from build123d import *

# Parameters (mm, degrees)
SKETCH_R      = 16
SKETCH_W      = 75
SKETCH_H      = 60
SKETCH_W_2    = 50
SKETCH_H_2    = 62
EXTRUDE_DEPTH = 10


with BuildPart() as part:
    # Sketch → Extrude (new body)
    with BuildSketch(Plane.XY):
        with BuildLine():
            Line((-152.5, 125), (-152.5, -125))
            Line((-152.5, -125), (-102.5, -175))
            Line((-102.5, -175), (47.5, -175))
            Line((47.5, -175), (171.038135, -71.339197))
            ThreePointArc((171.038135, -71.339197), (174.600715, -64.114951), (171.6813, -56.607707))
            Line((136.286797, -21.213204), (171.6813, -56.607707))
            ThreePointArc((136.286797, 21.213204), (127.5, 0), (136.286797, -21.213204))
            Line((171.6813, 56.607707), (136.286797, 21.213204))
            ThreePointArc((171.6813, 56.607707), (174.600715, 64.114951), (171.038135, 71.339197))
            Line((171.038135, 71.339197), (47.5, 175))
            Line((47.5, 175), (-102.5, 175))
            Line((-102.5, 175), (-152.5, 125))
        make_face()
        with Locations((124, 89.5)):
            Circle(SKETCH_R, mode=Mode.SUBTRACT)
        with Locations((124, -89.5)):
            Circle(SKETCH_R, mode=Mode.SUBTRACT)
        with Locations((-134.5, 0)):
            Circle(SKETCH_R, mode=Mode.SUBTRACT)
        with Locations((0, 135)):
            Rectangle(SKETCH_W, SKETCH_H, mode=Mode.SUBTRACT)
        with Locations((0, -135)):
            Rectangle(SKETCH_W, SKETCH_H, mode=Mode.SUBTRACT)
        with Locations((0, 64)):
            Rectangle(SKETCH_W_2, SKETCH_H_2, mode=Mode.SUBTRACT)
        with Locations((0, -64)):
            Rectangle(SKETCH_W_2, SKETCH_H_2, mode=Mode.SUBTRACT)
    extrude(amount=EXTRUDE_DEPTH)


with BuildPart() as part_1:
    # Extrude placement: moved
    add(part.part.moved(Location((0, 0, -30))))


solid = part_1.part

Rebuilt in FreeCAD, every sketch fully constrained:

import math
import FreeCAD as App
import Part
import Sketcher

V = App.Vector
Q = App.Units.Quantity

doc = App.newDocument("Part")
body = doc.addObject("PartDesign::Body", "Body")

sketch1 = doc.addObject("Sketcher::SketchObject", "Sketch")
body.addObject(sketch1)
sketch1.AttachmentSupport = (doc.XY_Plane, [""])
sketch1.MapMode = "FlatFace"
sketch1.addGeometry(Part.LineSegment(V(-152.5, 125, 0), V(-152.5, -125, 0)), False)
sketch1.addGeometry(Part.LineSegment(V(-152.5, -125, 0), V(-102.5, -175, 0)), False)
sketch1.addGeometry(Part.LineSegment(V(-102.5, -175, 0), V(47.5, -175, 0)), False)
sketch1.addGeometry(Part.LineSegment(V(47.5, -175, 0), V(171.038135, -71.339197, 0)), False)
sketch1.addGeometry(Part.ArcOfCircle(Part.Circle(V(164.610231, -63.678775, 0), V(0, 0, 1), 10.000001), math.radians(-49.999797), math.radians(44.999997)), False)
sketch1.addGeometry(Part.LineSegment(V(171.6813, -56.607707, 0), V(136.286797, -21.213204, 0)), False)
sketch1.addGeometry(Part.ArcOfCircle(Part.Circle(V(157.5, 0, 0), V(0, 0, 1), 30), math.radians(134.999999), math.radians(225.000001)), False)
sketch1.addGeometry(Part.LineSegment(V(136.286797, 21.213204, 0), V(171.6813, 56.607707, 0)), False)
sketch1.addGeometry(Part.ArcOfCircle(Part.Circle(V(164.610231, 63.678775, 0), V(0, 0, 1), 10.000001), math.radians(-44.999997), math.radians(49.999797)), False)
sketch1.addGeometry(Part.LineSegment(V(171.038135, 71.339197, 0), V(47.5, 175, 0)), False)
sketch1.addGeometry(Part.LineSegment(V(47.5, 175, 0), V(-102.5, 175, 0)), False)
sketch1.addGeometry(Part.LineSegment(V(-102.5, 175, 0), V(-152.5, 125, 0)), False)
sketch1.addGeometry(Part.LineSegment(V(37.5, -165, 0), V(-37.5, -165, 0)), False)
sketch1.addGeometry(Part.LineSegment(V(-37.5, -165, 0), V(-37.5, -105, 0)), False)
sketch1.addGeometry(Part.LineSegment(V(-37.5, -105, 0), V(37.5, -105, 0)), False)
sketch1.addGeometry(Part.LineSegment(V(37.5, -105, 0), V(37.5, -165, 0)), False)
sketch1.addGeometry(Part.Circle(V(124, -89.5, 0), V(0, 0, 1), 16), False)
sketch1.addGeometry(Part.LineSegment(V(25, -95, 0), V(-25, -95, 0)), False)
sketch1.addGeometry(Part.LineSegment(V(-25, -95, 0), V(-25, -33, 0)), False)
sketch1.addGeometry(Part.LineSegment(V(-25, -33, 0), V(25, -33, 0)), False)
sketch1.addGeometry(Part.LineSegment(V(25, -33, 0), V(25, -95, 0)), False)
sketch1.addGeometry(Part.Circle(V(-134.5, 0, 0), V(0, 0, 1), 16), False)
sketch1.addGeometry(Part.LineSegment(V(25, 33, 0), V(-25, 33, 0)), False)
sketch1.addGeometry(Part.LineSegment(V(-25, 33, 0), V(-25, 95, 0)), False)
sketch1.addGeometry(Part.LineSegment(V(-25, 95, 0), V(25, 95, 0)), False)
sketch1.addGeometry(Part.LineSegment(V(25, 95, 0), V(25, 33, 0)), False)
sketch1.addGeometry(Part.LineSegment(V(37.5, 105, 0), V(-37.5, 105, 0)), False)
sketch1.addGeometry(Part.LineSegment(V(-37.5, 105, 0), V(-37.5, 165, 0)), False)
sketch1.addGeometry(Part.LineSegment(V(-37.5, 165, 0), V(37.5, 165, 0)), False)
sketch1.addGeometry(Part.LineSegment(V(37.5, 165, 0), V(37.5, 105, 0)), False)
sketch1.addGeometry(Part.Circle(V(124, 89.5, 0), V(0, 0, 1), 16), False)
sketch1.addConstraint(Sketcher.Constraint("Coincident", 0, 2, 1, 1))
sketch1.addConstraint(Sketcher.Constraint("Coincident", 1, 2, 2, 1))
sketch1.addConstraint(Sketcher.Constraint("Coincident", 2, 2, 3, 1))
sketch1.addConstraint(Sketcher.Constraint("Coincident", 3, 2, 4, 1))
sketch1.addConstraint(Sketcher.Constraint("Tangent", 4, 2, 5, 1))
sketch1.addConstraint(Sketcher.Constraint("Tangent", 5, 2, 6, 2))
sketch1.addConstraint(Sketcher.Constraint("Tangent", 6, 1, 7, 1))
sketch1.addConstraint(Sketcher.Constraint("Tangent", 7, 2, 8, 1))
sketch1.addConstraint(Sketcher.Constraint("Coincident", 8, 2, 9, 1))
sketch1.addConstraint(Sketcher.Constraint("Coincident", 9, 2, 10, 1))
sketch1.addConstraint(Sketcher.Constraint("Coincident", 10, 2, 11, 1))
sketch1.addConstraint(Sketcher.Constraint("Coincident", 11, 2, 0, 1))
sketch1.addConstraint(Sketcher.Constraint("Coincident", 12, 2, 13, 1))
sketch1.addConstraint(Sketcher.Constraint("Coincident", 13, 2, 14, 1))
sketch1.addConstraint(Sketcher.Constraint("Coincident", 14, 2, 15, 1))
sketch1.addConstraint(Sketcher.Constraint("Coincident", 15, 2, 12, 1))
sketch1.addConstraint(Sketcher.Constraint("Coincident", 17, 2, 18, 1))
sketch1.addConstraint(Sketcher.Constraint("Coincident", 18, 2, 19, 1))
sketch1.addConstraint(Sketcher.Constraint("Coincident", 19, 2, 20, 1))
sketch1.addConstraint(Sketcher.Constraint("Coincident", 20, 2, 17, 1))
sketch1.addConstraint(Sketcher.Constraint("Coincident", 22, 2, 23, 1))
sketch1.addConstraint(Sketcher.Constraint("Coincident", 23, 2, 24, 1))
sketch1.addConstraint(Sketcher.Constraint("Coincident", 24, 2, 25, 1))
sketch1.addConstraint(Sketcher.Constraint("Coincident", 25, 2, 22, 1))
sketch1.addConstraint(Sketcher.Constraint("Coincident", 26, 2, 27, 1))
sketch1.addConstraint(Sketcher.Constraint("Coincident", 27, 2, 28, 1))
sketch1.addConstraint(Sketcher.Constraint("Coincident", 28, 2, 29, 1))
sketch1.addConstraint(Sketcher.Constraint("Coincident", 29, 2, 26, 1))
sketch1.addConstraint(Sketcher.Constraint("Vertical", 0))
sketch1.addConstraint(Sketcher.Constraint("Horizontal", 2))
sketch1.addConstraint(Sketcher.Constraint("Horizontal", 10))
sketch1.addConstraint(Sketcher.Constraint("Horizontal", 12))
sketch1.addConstraint(Sketcher.Constraint("Vertical", 13))
sketch1.addConstraint(Sketcher.Constraint("Horizontal", 14))
sketch1.addConstraint(Sketcher.Constraint("Vertical", 15))
sketch1.addConstraint(Sketcher.Constraint("Horizontal", 17))
sketch1.addConstraint(Sketcher.Constraint("Vertical", 18))
sketch1.addConstraint(Sketcher.Constraint("Horizontal", 19))
sketch1.addConstraint(Sketcher.Constraint("Vertical", 20))
sketch1.addConstraint(Sketcher.Constraint("Horizontal", 22))
sketch1.addConstraint(Sketcher.Constraint("Vertical", 23))
sketch1.addConstraint(Sketcher.Constraint("Horizontal", 24))
sketch1.addConstraint(Sketcher.Constraint("Vertical", 25))
sketch1.addConstraint(Sketcher.Constraint("Horizontal", 26))
sketch1.addConstraint(Sketcher.Constraint("Vertical", 27))
sketch1.addConstraint(Sketcher.Constraint("Horizontal", 28))
sketch1.addConstraint(Sketcher.Constraint("Vertical", 29))
sketch1.addConstraint(Sketcher.Constraint("Equal", 4, 8))
sketch1.addConstraint(Sketcher.Constraint("Equal", 16, 21))
sketch1.addConstraint(Sketcher.Constraint("Equal", 21, 30))
sketch1.addConstraint(Sketcher.Constraint("Symmetric", 19, 2, 22, 2, -1, 1))
sketch1.addConstraint(Sketcher.Constraint("Symmetric", 17, 2, 24, 2, -1, 1))
sketch1.addConstraint(Sketcher.Constraint("Symmetric", 14, 2, 26, 2, -1, 1))
sketch1.addConstraint(Sketcher.Constraint("Symmetric", 12, 2, 28, 2, -1, 1))
sketch1.addConstraint(Sketcher.Constraint("Symmetric", 4, 3, 8, 3, -1))
sketch1.addConstraint(Sketcher.Constraint("Symmetric", 16, 3, 30, 3, -1))
sketch1.addConstraint(Sketcher.Constraint("Symmetric", 2, 2, 9, 2, -1))
sketch1.addConstraint(Sketcher.Constraint("PointOnObject", 6, 3, -1))
sketch1.addConstraint(Sketcher.Constraint("PointOnObject", 21, 3, -1))
sketch1.addConstraint(Sketcher.Constraint("Parallel", 1, 5))
sketch1.addConstraint(Sketcher.Constraint("Perpendicular", 5, 7))
sketch1.addConstraint(Sketcher.Constraint("Parallel", 7, 11))
sketch1.addConstraint(Sketcher.Constraint("Vertical", 3, 2, 8, 2))
sketch1.addConstraint(Sketcher.Constraint("Vertical", 1, 2, 10, 2))
sketch1.addConstraint(Sketcher.Constraint("Vertical", 18, 2, 22, 2))
sketch1.addConstraint(Sketcher.Constraint("Vertical", 13, 2, 26, 2))
sketch1.addConstraint(Sketcher.Constraint("Diameter", 16, 32.0))
sketch1.addConstraint(Sketcher.Constraint("Radius", 4, 10.000001))
sketch1.addConstraint(Sketcher.Constraint("Radius", 6, 30.0))
sketch1.addConstraint(Sketcher.Constraint("DistanceX", 2, 1, 2, 2, 150.0))
sketch1.addConstraint(Sketcher.Constraint("DistanceX", 12, 2, 12, 1, 75.0))
sketch1.addConstraint(Sketcher.Constraint("DistanceX", 17, 2, 17, 1, 50.0))
sketch1.addConstraint(Sketcher.Constraint("DistanceY", 0, 2, 0, 1, 250.0))
sketch1.addConstraint(Sketcher.Constraint("DistanceY", 13, 1, 13, 2, 60.0))
sketch1.addConstraint(Sketcher.Constraint("DistanceY", 18, 1, 18, 2, 62.0))
sketch1.addConstraint(Sketcher.Constraint("Angle", 3, Q("40 deg")))
sketch1.addConstraint(Sketcher.Constraint("DistanceX", -1, 1, 16, 3, 124.0))
sketch1.addConstraint(Sketcher.Constraint("DistanceY", 1, 2, -1, 1, 175.0))
sketch1.addConstraint(Sketcher.Constraint("DistanceY", 12, 2, -1, 1, 165.0))
sketch1.addConstraint(Sketcher.Constraint("DistanceY", 17, 2, -1, 1, 95.0))
sketch1.addConstraint(Sketcher.Constraint("DistanceX", 21, 3, 6, 3, 292.0))
sketch1.addConstraint(Sketcher.Constraint("DistanceY", 16, 3, 30, 3, 179.0))
sketch1.addConstraint(Sketcher.Constraint("DistanceX", 0, 2, 21, 3, 18.0))
sketch1.addConstraint(Sketcher.Constraint("DistanceX", 1, 2, 12, 2, 65.0))
sketch1.addConstraint(Sketcher.Constraint("Distance", 3, 161.267582))
pad1 = doc.addObject("PartDesign::Pad", "Pad")
body.addObject(pad1)
pad1.Profile = sketch1
pad1.Length = 10
body2 = doc.addObject("PartDesign::Body", "Body001")
doc.recompute()

body.Placement = App.Placement(V(0, 0, -30), App.Rotation(V(0, 0, 1), 0))
boolean = doc.addObject("PartDesign::Boolean", "Boolean")
body2.addObject(boolean)
boolean.Type = "Fuse"
boolean.addObjects([body])

doc.recompute()
